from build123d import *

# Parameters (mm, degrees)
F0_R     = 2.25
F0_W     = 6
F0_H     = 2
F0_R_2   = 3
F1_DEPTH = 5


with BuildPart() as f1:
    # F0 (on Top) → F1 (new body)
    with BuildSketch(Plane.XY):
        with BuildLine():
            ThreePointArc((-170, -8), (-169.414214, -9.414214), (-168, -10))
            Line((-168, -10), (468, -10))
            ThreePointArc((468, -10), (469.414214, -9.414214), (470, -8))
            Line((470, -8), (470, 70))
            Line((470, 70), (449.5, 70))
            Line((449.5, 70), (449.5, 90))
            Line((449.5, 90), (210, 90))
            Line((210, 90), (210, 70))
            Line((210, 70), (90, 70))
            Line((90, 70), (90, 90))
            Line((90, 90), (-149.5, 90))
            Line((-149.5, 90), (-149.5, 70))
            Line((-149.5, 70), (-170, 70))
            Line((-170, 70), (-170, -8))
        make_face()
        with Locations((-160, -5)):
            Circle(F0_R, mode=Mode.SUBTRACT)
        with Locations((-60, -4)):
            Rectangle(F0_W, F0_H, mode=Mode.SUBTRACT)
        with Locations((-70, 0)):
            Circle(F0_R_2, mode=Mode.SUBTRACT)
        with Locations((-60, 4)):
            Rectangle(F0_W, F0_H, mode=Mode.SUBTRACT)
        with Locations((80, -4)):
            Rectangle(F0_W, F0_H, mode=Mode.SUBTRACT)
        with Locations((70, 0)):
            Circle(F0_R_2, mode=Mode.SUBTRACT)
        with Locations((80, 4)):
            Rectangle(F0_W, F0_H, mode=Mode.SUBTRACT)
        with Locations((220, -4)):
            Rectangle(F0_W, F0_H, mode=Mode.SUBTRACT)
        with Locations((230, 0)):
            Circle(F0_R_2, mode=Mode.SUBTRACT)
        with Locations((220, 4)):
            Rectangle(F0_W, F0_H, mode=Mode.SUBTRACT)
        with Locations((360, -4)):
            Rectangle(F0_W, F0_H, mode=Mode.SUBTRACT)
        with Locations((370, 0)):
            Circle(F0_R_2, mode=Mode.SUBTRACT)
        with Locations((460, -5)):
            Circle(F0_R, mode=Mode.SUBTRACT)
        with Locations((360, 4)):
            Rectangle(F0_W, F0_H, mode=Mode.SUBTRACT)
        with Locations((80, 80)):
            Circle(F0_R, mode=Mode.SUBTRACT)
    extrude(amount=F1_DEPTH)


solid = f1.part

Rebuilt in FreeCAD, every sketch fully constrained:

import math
import FreeCAD as App
import Part
import Sketcher


def add_polygon(sketch, points):
    """Adds a closed chain of lines whose ends are joined by coincident constraints."""
    first, n = sketch.GeometryCount, len(points)
    for a, b in zip(points, points[1:] + points[:1]):
        sketch.addGeometry(Part.LineSegment(App.Vector(*a, 0), App.Vector(*b, 0)), False)
    for i in range(n):
        sketch.addConstraint(Sketcher.Constraint("Coincident", first + i, 2, first + (i + 1) % n, 1))

doc = App.newDocument("Part")
params = doc.addObject("Spreadsheet::Sheet", "Params")
for row, (alias, value) in enumerate([
    ("sketch1_diameter", "6 mm"),
    ("sketch1_radius", "1.999999 mm"),
    ("sketch1_diameter2", "4.5 mm"),
    ("sketch1_width", "636 mm"),
    ("sketch1_width2", "120 mm"),
    ("pad1_length", "5 mm"),
], start=1):
    params.set(f"A{row}", alias)
    params.set(f"B{row}", "=" + value)
    params.setAlias(f"B{row}", alias)

body = doc.addObject("PartDesign::Body", "Body")

# Sketch on XY plane
sketch1 = body.newObject("Sketcher::SketchObject", "Sketch")
sketch1.AttachmentSupport = (doc.getObject("XY_Plane"), [""])
sketch1.MapMode = "FlatFace"
sketch1.addGeometry(Part.ArcOfCircle(Part.Circle(App.Vector(-168, -8, 0), App.Vector(0, 0, 1), 2), math.radians(180), math.radians(270)), False)  # 0
sketch1.addGeometry(Part.LineSegment(App.Vector(-168, -10, 0), App.Vector(468, -10, 0)), False)  # 1
sketch1.addGeometry(Part.ArcOfCircle(Part.Circle(App.Vector(468, -8, 0), App.Vector(0, 0, 1), 2), math.radians(-90), math.radians(0)), False)  # 2
sketch1.addGeometry(Part.LineSegment(App.Vector(470, -8, 0), App.Vector(470, 70, 0)), False)  # 3
sketch1.addGeometry(Part.LineSegment(App.Vector(470, 70, 0), App.Vector(449.5, 70, 0)), False)  # 4
sketch1.addGeometry(Part.LineSegment(App.Vector(449.5, 70, 0), App.Vector(449.5, 90, 0)), False)  # 5
sketch1.addGeometry(Part.LineSegment(App.Vector(449.5, 90, 0), App.Vector(210, 90, 0)), False)  # 6
sketch1.addGeometry(Part.LineSegment(App.Vector(210, 90, 0), App.Vector(210, 70, 0)), False)  # 7
sketch1.addGeometry(Part.LineSegment(App.Vector(210, 70, 0), App.Vector(90, 70, 0)), False)  # 8
sketch1.addGeometry(Part.LineSegment(App.Vector(90, 70, 0), App.Vector(90, 90, 0)), False)  # 9
sketch1.addGeometry(Part.LineSegment(App.Vector(90, 90, 0), App.Vector(-149.5, 90, 0)), False)  # 10
sketch1.addGeometry(Part.LineSegment(App.Vector(-149.5, 90, 0), App.Vector(-149.5, 70, 0)), False)  # 11
sketch1.addGeometry(Part.LineSegment(App.Vector(-149.5, 70, 0), App.Vector(-170, 70, 0)), False)  # 12
sketch1.addGeometry(Part.LineSegment(App.Vector(-170, 70, 0), App.Vector(-170, -8, 0)), False)  # 13
sketch1.addGeometry(Part.Circle(App.Vector(-160, -5, 0), App.Vector(0, 0, 1), 2.2), False)  # 14
add_polygon(sketch1, [(-57, -5), (-63, -5), (-63, -3), (-57, -3)])  # lines 15-18
sketch1.addGeometry(Part.Circle(App.Vector(-70, 0, 0), App.Vector(0, 0, 1), 3), False)  # 19
add_polygon(sketch1, [(-57, 3), (-63, 3), (-63, 5), (-57, 5)])  # lines 20-23
sketch1.addGeometry(Part.Circle(App.Vector(70, 0, 0), App.Vector(0, 0, 1), 3), False)  # 24
add_polygon(sketch1, [(83, -5), (77, -5), (77, -3), (83, -3)])  # lines 25-28
add_polygon(sketch1, [(83, 3), (77, 3), (77, 5), (83, 5)])  # lines 29-32
add_polygon(sketch1, [(223, -5), (217, -5), (217, -3), (223, -3)])  # lines 33-36
sketch1.addGeometry(Part.Circle(App.Vector(230, 0, 0), App.Vector(0, 0, 1), 3), False)  # 37
add_polygon(sketch1, [(223, 3), (217, 3), (217, 5), (223, 5)])  # lines 38-41
add_polygon(sketch1, [(363, -5), (357, -5), (357, -3), (363, -3)])  # lines 42-45
sketch1.addGeometry(Part.Circle(App.Vector(370, 0, 0), App.Vector(0, 0, 1), 3), False)  # 46
sketch1.addGeometry(Part.Circle(App.Vector(460, -5, 0), App.Vector(0, 0, 1), 2.2), False)  # 47
add_polygon(sketch1, [(363, 3), (357, 3), (357, 5), (363, 5)])  # lines 48-51
sketch1.addGeometry(Part.Circle(App.Vector(80, 80, 0), App.Vector(0, 0, 1), 2.2), False)  # 52
sketch1.addConstraint([
    Sketcher.Constraint("Tangent", 0, 2, 1, 1),
    Sketcher.Constraint("Tangent", 1, 2, 2, 1),
    Sketcher.Constraint("Tangent", 2, 2, 3, 1),
    Sketcher.Constraint("Coincident", 3, 2, 4, 1),
    Sketcher.Constraint("Coincident", 4, 2, 5, 1),
    Sketcher.Constraint("Coincident", 5, 2, 6, 1),
    Sketcher.Constraint("Coincident", 6, 2, 7, 1),
    Sketcher.Constraint("Coincident", 7, 2, 8, 1),
    Sketcher.Constraint("Coincident", 8, 2, 9, 1),
    Sketcher.Constraint("Coincident", 9, 2, 10, 1),
    Sketcher.Constraint("Coincident", 10, 2, 11, 1),
    Sketcher.Constraint("Coincident", 11, 2, 12, 1),
    Sketcher.Constraint("Coincident", 12, 2, 13, 1),
    Sketcher.Constraint("Tangent", 13, 2, 0, 1),
    Sketcher.Constraint("Horizontal", 1),
    Sketcher.Constraint("Vertical", 3),
    Sketcher.Constraint("Horizontal", 4),
    Sketcher.Constraint("Vertical", 5),
    Sketcher.Constraint("Horizontal", 6),
    Sketcher.Constraint("Vertical", 7),
    Sketcher.Constraint("Horizontal", 8),
    Sketcher.Constraint("Vertical", 9),
    Sketcher.Constraint("Horizontal", 10),
    Sketcher.Constraint("Vertical", 11),
    Sketcher.Constraint("Horizontal", 12),
    Sketcher.Constraint("Vertical", 13),
    Sketcher.Constraint("Horizontal", 15),
    Sketcher.Constraint("Vertical", 16),
    Sketcher.Constraint("Horizontal", 17),
    Sketcher.Constraint("Vertical", 18),
    Sketcher.Constraint("Horizontal", 20),
    Sketcher.Constraint("Vertical", 21),
    Sketcher.Constraint("Horizontal", 22),
    Sketcher.Constraint("Vertical", 23),
    Sketcher.Constraint("Horizontal", 25),
    Sketcher.Constraint("Vertical", 26),
    Sketcher.Constraint("Horizontal", 27),
    Sketcher.Constraint("Vertical", 28),
    Sketcher.Constraint("Horizontal", 29),
    Sketcher.Constraint("Vertical", 30),
    Sketcher.Constraint("Horizontal", 31),
    Sketcher.Constraint("Vertical", 32),
    Sketcher.Constraint("Horizontal", 33),
    Sketcher.Constraint("Vertical", 34),
    Sketcher.Constraint("Horizontal", 35),
    Sketcher.Constraint("Vertical", 36),
    Sketcher.Constraint("Horizontal", 38),
    Sketcher.Constraint("Vertical", 39),
    Sketcher.Constraint("Horizontal", 40),
    Sketcher.Constraint("Vertical", 41),
    Sketcher.Constraint("Horizontal", 42),
    Sketcher.Constraint("Vertical", 43),
    Sketcher.Constraint("Horizontal", 44),
    Sketcher.Constraint("Vertical", 45),
    Sketcher.Constraint("Horizontal", 48),
    Sketcher.Constraint("Vertical", 49),
    Sketcher.Constraint("Horizontal", 50),
    Sketcher.Constraint("Vertical", 51),
    Sketcher.Constraint("Equal", 0, 2),
    Sketcher.Constraint("Equal", 19, 24),
    Sketcher.Constraint("Equal", 24, 37),
    Sketcher.Constraint("Equal", 37, 46),
    Sketcher.Constraint("Equal", 14, 47),
    Sketcher.Constraint("Equal", 47, 52),
    Sketcher.Constraint("Symmetric", 19, 3, 24, 3, -1, 1),
    Sketcher.Constraint("Symmetric", 16, 2, 20, 2, -1),
    Sketcher.Constraint("Symmetric", 18, 2, 22, 2, -1),
    Sketcher.Constraint("Symmetric", 26, 2, 29, 2, -1),
    Sketcher.Constraint("Symmetric", 28, 2, 31, 2, -1),
    Sketcher.Constraint("Symmetric", 34, 2, 38, 2, -1),
    Sketcher.Constraint("Symmetric", 36, 2, 40, 2, -1),
    Sketcher.Constraint("Symmetric", 43, 2, 48, 2, -1),
    Sketcher.Constraint("Symmetric", 45, 2, 50, 2, -1),
    Sketcher.Constraint("PointOnObject", 19, 3, -1),
    Sketcher.Constraint("PointOnObject", 37, 3, -1),
    Sketcher.Constraint("PointOnObject", 46, 3, -1),
    Sketcher.Constraint("Horizontal", 14, 3, 47, 3),
    Sketcher.Constraint("Horizontal", 4, 2, 7, 2),
    Sketcher.Constraint("Horizontal", 6, 2, 9, 2),
    Sketcher.Constraint("Horizontal", 8, 2, 11, 2),
    Sketcher.Constraint("Horizontal", 47, 3, 15, 2),
    Sketcher.Constraint("Horizontal", 18, 2, 25, 2),
    Sketcher.Constraint("Horizontal", 17, 2, 26, 2),
    Sketcher.Constraint("Horizontal", 28, 2, 33, 2),
    Sketcher.Constraint("Horizontal", 27, 2, 34, 2),
    Sketcher.Constraint("Horizontal", 36, 2, 42, 2),
    Sketcher.Constraint("Horizontal", 35, 2, 43, 2),
    Sketcher.Constraint("Equal", 6, 10),
    Sketcher.Constraint("Equal", 4, 12),
    Sketcher.Constraint("Equal", 22, 25),
    Sketcher.Constraint("Equal", 31, 33),
    Sketcher.Constraint("Equal", 40, 42),
    Sketcher.Constraint("Diameter", 19, 6.0),
    Sketcher.Constraint("Radius", 0, 1.999999),
    Sketcher.Constraint("Diameter", 14, 4.5),
    Sketcher.Constraint("DistanceX", 1, 1, 1, 2, 636.0),
    Sketcher.Constraint("DistanceX", 8, 2, 8, 1, 120.0),
    Sketcher.Constraint("DistanceX", 15, 2, 15, 1, 6.0),
    Sketcher.Constraint("DistanceY", 3, 1, 3, 2, 78.0),
    Sketcher.Constraint("DistanceY", 5, 1, 5, 2, 20.0),
    Sketcher.Constraint("DistanceY", 16, 1, 16, 2, 2.0),
    Sketcher.Constraint("DistanceX", 4, 2, 4, 1, 20.5),
    Sketcher.Constraint("DistanceX", 0, 3, -1, 1, 168.000001),
    Sketcher.Constraint("DistanceY", 0, 3, -1, 1, 8.000001),
    Sketcher.Constraint("DistanceX", 14, 3, -1, 1, 160.0),
    Sketcher.Constraint("DistanceY", 14, 3, -1, 1, 5.0),
    Sketcher.Constraint("DistanceX", 19, 3, -1, 1, 70.0),
    Sketcher.Constraint("DistanceX", -1, 1, 37, 3, 230.0),
    Sketcher.Constraint("DistanceX", -1, 1, 46, 3, 370.0),
    Sketcher.Constraint("DistanceX", -1, 1, 47, 3, 460.0),
    Sketcher.Constraint("DistanceX", -1, 1, 52, 3, 80.0),
    Sketcher.Constraint("DistanceY", -1, 1, 52, 3, 80.0),
    Sketcher.Constraint("DistanceX", 15, 2, -1, 1, 63.0),
    Sketcher.Constraint("DistanceX", -1, 1, 25, 2, 77.0),
    Sketcher.Constraint("DistanceX", -1, 1, 33, 2, 217.0),
    Sketcher.Constraint("DistanceX", -1, 1, 42, 2, 357.0),
])
sketch1.setExpression("Constraints[124]", "Params.sketch1_diameter")
sketch1.setExpression("Constraints[125]", "Params.sketch1_radius")
sketch1.setExpression("Constraints[126]", "Params.sketch1_diameter2")
sketch1.setExpression("Constraints[127]", "Params.sketch1_width")
sketch1.setExpression("Constraints[128]", "Params.sketch1_width2")
pad1 = body.newObject("PartDesign::Pad", "Pad")
pad1.Profile = sketch1
pad1.setExpression("Length", "Params.pad1_length")

doc.recompute()
